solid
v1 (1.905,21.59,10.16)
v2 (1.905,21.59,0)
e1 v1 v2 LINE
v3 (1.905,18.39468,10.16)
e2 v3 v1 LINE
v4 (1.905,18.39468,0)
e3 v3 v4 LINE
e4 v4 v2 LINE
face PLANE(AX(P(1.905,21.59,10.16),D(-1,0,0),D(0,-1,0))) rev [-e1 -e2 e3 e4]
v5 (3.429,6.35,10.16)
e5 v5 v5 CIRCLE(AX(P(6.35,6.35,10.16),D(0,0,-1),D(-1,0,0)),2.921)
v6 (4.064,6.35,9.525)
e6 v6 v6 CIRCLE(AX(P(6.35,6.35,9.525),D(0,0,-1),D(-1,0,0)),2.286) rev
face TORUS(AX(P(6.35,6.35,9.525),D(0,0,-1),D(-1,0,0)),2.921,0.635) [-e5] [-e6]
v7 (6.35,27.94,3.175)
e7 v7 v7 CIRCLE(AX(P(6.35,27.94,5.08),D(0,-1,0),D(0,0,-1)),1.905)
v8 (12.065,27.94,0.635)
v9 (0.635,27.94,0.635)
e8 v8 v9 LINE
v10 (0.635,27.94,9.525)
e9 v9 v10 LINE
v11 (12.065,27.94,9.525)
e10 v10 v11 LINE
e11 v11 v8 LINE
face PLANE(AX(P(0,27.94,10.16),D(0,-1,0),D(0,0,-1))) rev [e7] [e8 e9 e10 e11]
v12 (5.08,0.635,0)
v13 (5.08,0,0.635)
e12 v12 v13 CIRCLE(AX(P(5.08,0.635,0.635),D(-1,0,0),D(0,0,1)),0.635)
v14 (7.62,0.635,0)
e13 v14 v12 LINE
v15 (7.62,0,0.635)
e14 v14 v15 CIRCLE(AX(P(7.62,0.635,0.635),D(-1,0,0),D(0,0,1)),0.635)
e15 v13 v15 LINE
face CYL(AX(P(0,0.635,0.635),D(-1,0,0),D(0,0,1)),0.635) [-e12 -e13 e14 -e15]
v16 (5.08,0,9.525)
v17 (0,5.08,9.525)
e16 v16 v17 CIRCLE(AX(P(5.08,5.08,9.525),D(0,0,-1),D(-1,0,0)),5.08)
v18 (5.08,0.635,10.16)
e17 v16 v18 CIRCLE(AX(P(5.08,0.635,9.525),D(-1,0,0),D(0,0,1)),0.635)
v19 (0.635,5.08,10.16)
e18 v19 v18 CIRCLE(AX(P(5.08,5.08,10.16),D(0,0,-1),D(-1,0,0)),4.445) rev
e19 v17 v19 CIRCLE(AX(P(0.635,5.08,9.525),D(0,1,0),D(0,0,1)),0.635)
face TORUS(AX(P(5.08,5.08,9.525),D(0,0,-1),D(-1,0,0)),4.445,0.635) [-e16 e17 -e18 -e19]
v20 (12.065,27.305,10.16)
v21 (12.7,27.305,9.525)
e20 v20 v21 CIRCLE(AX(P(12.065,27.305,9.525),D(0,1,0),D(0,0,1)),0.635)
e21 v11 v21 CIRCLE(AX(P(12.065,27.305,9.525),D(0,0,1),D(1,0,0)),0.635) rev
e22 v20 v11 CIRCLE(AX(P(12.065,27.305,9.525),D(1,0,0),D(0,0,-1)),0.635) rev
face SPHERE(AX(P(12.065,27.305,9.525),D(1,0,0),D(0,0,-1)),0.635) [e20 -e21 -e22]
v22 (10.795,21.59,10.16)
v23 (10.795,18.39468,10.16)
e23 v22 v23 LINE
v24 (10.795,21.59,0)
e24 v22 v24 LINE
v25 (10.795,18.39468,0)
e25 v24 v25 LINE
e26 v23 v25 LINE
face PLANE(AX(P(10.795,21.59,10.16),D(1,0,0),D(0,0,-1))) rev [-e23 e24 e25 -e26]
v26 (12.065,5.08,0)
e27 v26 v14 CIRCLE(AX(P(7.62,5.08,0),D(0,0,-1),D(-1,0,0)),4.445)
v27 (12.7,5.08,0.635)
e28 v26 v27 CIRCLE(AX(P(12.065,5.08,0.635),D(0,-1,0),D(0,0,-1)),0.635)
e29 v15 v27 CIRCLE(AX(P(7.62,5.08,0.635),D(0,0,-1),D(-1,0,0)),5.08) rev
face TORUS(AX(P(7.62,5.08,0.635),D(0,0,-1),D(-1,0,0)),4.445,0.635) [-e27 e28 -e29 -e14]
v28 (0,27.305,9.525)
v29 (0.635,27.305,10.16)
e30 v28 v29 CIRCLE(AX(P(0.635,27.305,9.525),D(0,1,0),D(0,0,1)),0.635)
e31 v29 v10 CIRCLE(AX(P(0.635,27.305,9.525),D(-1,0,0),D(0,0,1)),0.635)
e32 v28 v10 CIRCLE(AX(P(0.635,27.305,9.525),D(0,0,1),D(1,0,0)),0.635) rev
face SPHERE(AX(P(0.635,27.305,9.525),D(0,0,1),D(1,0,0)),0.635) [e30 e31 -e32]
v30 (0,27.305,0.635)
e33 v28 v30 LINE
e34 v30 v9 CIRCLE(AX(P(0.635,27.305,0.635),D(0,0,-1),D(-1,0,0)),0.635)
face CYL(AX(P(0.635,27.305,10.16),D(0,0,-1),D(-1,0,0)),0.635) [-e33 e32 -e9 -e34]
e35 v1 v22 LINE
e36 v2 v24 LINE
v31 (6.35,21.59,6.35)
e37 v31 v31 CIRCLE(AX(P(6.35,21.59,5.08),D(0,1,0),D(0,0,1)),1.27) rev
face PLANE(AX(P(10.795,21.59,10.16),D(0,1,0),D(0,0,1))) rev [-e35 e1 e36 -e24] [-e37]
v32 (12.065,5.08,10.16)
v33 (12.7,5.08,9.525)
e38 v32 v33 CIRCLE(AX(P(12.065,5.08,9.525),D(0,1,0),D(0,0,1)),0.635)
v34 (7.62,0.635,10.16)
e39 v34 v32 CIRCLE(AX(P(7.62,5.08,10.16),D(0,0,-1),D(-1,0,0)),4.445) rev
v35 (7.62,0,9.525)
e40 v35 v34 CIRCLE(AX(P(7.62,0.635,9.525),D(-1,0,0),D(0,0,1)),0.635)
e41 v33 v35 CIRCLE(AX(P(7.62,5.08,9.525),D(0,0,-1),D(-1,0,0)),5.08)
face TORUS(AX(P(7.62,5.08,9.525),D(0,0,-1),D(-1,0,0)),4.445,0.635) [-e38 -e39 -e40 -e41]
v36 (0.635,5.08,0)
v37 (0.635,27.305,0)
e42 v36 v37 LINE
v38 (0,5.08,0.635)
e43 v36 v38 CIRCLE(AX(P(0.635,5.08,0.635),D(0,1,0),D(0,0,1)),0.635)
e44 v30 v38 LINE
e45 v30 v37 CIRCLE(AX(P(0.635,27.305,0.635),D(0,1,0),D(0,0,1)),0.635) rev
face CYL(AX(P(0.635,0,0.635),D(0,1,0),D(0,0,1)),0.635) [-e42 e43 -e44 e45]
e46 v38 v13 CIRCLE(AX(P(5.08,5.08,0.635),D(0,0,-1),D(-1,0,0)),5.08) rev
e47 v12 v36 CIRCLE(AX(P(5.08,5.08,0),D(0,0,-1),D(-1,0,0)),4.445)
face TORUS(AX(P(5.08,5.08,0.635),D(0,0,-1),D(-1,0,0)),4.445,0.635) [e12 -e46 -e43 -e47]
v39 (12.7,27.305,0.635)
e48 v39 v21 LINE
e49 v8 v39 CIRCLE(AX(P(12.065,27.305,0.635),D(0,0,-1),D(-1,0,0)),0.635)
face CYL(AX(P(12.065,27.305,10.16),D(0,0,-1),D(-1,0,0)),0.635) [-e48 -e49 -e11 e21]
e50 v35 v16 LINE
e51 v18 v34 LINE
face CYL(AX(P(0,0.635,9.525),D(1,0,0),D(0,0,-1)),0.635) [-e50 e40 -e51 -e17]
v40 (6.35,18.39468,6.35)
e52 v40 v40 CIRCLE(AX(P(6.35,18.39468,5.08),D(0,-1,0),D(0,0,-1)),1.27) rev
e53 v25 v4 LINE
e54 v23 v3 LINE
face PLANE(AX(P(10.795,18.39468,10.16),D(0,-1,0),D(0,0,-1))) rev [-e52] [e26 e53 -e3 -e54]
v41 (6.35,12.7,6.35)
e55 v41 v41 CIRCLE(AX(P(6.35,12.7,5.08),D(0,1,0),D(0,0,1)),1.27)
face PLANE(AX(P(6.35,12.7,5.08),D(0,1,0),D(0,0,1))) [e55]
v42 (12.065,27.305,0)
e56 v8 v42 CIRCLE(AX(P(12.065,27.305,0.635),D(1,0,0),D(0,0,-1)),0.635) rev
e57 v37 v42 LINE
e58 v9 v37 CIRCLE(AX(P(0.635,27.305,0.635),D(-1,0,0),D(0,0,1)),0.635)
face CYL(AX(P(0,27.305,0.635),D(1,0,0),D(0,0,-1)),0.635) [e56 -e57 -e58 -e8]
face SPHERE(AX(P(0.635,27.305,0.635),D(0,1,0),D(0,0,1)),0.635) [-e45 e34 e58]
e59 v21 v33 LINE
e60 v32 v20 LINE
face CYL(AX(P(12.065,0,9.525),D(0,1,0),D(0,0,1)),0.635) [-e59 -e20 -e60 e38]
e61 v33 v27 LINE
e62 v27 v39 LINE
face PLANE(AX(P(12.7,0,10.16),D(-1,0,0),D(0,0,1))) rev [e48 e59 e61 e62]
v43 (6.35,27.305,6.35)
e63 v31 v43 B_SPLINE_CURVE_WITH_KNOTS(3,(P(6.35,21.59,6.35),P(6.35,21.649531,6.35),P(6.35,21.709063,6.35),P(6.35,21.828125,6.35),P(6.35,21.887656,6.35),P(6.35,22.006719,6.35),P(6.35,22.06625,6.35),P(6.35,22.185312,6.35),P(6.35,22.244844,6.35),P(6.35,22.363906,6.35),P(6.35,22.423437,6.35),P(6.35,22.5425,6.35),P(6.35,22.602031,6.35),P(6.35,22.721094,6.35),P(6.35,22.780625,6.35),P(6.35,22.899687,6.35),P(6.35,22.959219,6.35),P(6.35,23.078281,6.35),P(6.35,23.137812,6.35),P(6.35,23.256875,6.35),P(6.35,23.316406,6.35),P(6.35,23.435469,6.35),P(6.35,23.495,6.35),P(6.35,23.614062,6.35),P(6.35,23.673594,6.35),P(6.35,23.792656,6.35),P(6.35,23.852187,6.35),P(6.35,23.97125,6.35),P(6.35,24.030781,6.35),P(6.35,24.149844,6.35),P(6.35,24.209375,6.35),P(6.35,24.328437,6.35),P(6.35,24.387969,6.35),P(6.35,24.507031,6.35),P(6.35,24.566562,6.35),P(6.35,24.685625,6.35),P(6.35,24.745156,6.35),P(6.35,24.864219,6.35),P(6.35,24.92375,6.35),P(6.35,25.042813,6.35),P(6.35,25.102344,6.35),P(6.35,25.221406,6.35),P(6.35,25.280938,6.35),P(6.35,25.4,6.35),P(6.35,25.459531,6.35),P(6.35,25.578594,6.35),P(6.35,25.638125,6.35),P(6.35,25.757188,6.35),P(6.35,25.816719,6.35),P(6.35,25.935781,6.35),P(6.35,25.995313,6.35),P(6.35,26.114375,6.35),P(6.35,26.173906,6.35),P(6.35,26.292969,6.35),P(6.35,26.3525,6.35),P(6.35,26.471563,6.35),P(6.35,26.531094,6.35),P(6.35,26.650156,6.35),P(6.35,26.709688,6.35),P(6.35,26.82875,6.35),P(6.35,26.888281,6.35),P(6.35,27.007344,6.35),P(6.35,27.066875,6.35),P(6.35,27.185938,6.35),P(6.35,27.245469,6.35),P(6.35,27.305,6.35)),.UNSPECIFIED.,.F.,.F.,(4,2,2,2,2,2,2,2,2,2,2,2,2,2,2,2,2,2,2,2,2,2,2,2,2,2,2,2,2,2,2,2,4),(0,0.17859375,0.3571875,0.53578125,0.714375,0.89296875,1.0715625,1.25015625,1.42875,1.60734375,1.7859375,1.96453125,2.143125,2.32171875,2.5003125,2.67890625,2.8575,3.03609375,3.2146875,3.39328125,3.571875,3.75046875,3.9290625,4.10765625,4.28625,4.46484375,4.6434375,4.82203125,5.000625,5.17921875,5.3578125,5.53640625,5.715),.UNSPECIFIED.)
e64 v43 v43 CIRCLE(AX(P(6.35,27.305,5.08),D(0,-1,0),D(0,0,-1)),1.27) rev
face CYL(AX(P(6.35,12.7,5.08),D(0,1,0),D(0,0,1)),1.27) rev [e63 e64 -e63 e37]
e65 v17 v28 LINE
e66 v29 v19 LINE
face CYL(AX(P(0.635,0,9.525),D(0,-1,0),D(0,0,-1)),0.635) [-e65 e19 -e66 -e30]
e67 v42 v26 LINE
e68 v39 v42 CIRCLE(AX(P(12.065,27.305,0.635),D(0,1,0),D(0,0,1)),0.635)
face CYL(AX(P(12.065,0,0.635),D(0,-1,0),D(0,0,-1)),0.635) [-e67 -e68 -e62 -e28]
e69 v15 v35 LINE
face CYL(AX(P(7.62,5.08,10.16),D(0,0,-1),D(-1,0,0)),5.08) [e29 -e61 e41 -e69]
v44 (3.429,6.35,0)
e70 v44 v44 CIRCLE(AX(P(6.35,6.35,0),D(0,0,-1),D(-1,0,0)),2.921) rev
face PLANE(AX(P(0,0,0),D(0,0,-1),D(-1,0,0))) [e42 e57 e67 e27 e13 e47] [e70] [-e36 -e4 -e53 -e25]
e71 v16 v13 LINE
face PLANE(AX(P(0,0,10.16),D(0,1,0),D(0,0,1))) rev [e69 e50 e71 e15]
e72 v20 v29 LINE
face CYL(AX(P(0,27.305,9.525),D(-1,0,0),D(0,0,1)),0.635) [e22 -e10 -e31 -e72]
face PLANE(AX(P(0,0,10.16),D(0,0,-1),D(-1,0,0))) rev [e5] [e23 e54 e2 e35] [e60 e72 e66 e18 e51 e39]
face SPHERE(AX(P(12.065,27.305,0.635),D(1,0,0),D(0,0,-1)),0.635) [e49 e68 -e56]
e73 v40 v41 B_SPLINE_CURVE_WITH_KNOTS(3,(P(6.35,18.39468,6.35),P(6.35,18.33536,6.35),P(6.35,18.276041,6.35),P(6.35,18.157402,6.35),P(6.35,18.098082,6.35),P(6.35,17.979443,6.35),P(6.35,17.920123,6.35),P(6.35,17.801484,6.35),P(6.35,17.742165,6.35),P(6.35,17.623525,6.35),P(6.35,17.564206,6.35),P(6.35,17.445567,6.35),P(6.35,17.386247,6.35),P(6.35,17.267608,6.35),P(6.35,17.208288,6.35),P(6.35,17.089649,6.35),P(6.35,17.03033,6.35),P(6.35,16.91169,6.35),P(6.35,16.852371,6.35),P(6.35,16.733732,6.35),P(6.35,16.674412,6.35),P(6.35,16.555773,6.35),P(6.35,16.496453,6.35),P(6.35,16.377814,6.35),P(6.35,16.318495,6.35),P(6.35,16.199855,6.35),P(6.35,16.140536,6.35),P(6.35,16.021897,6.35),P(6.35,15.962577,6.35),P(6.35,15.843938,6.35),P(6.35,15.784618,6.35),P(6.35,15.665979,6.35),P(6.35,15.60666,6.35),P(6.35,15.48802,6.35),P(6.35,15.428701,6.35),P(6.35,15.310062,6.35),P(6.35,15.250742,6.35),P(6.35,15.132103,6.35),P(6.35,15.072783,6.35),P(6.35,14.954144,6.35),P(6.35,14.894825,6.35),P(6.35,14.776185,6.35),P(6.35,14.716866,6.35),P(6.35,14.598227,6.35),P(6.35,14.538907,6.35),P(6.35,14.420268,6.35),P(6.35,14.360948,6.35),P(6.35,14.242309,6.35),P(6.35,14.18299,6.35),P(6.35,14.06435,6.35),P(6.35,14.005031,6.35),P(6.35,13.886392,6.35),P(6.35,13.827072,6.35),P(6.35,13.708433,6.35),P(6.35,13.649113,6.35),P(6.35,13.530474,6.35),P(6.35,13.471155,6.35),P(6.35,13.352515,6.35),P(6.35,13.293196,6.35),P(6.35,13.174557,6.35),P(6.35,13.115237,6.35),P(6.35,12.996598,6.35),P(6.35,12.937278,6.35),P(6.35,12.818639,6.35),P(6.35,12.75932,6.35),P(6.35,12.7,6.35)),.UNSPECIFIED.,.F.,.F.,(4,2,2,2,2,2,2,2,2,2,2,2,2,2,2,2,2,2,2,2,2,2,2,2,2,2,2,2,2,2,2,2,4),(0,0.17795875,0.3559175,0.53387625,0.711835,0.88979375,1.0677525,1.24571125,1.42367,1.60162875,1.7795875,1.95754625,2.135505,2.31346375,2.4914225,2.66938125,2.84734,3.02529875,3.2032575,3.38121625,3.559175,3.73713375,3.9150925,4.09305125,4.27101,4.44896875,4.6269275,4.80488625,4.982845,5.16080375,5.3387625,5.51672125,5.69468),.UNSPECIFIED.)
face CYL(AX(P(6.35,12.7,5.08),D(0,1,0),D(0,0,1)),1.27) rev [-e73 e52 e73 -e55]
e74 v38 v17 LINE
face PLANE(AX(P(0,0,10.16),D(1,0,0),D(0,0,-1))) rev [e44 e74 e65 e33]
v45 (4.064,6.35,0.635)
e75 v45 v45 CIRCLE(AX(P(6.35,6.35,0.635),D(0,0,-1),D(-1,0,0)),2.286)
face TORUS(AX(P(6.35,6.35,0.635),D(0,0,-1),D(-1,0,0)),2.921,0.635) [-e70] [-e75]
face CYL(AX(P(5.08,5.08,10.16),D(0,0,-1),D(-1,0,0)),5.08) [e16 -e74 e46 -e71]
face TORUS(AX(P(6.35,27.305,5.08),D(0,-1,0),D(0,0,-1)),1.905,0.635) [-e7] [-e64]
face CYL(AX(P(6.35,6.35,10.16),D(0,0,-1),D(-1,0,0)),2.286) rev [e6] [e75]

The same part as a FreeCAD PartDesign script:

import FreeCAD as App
import Part
import Sketcher
Q = App.Units.Quantity


def edges_at(feature, points):
    """Names of the edges that pass closest to the given points."""
    edges = feature.Shape.Edges
    near = lambda p: min(range(len(edges)), key=lambda i: edges[i].distToShape(Part.Vertex(*p))[0])
    return sorted({f"Edge{near(p) + 1}" for p in points})


def add_polygon(sketch, points):
    """Adds a closed chain of lines whose ends are joined by coincident constraints."""
    first, n = sketch.GeometryCount, len(points)
    for a, b in zip(points, points[1:] + points[:1]):
        sketch.addGeometry(Part.LineSegment(App.Vector(*a, 0), App.Vector(*b, 0)), False)
    for i in range(n):
        sketch.addConstraint(Sketcher.Constraint("Coincident", first + i, 2, first + (i + 1) % n, 1))

doc = App.newDocument("Part")
body = doc.addObject("PartDesign::Body", "Body")

sketch1 = body.newObject("Sketcher::SketchObject", "Sketch")
sketch1.AttachmentSupport = (doc.getObject("XY_Plane"), [""])
sketch1.MapMode = "FlatFace"
add_polygon(sketch1, [(0, 27.94), (0, 0), (12.7, 0), (12.7, 27.94)])
sketch1.addGeometry(Part.Circle(App.Vector(6.35, 6.35, 0), App.Vector(0, 0, 1), 2.286), False)
sketch1.addConstraint([
    Sketcher.Constraint("Vertical", 0),
    Sketcher.Constraint("Horizontal", 1),
    Sketcher.Constraint("Vertical", 2),
    Sketcher.Constraint("Horizontal", 3),
    Sketcher.Constraint("Coincident", 0, 2, -1, 1),
    Sketcher.Constraint("Diameter", 4, Q("0.18 in")),
    Sketcher.Constraint("DistanceX", 1, 1, 1, 2, Q("0.5 in")),
    Sketcher.Constraint("DistanceY", 0, 2, 0, 1, Q("1.1 in")),
    Sketcher.Constraint("DistanceX", -1, 1, 4, 3, Q("0.25 in")),
    Sketcher.Constraint("DistanceY", -1, 1, 4, 3, Q("0.25 in")),
])
pad1 = body.newObject("PartDesign::Pad", "Pad")
pad1.Profile = sketch1
pad1.Length = Q("0.4 in")

sketch2 = body.newObject("Sketcher::SketchObject", "Sketch001")
sketch2.AttachmentSupport = (doc.getObject("XZ_Plane"), [""])
sketch2.MapMode = "FlatFace"
sketch2.AttachmentOffset = App.Placement(App.Vector(0, 0, -1.1 * 25.4), App.Rotation())
sketch2.addGeometry(Part.Circle(App.Vector(6.35, 5.08, 0), App.Vector(0, 0, 1), 1.27), False)
sketch2.addConstraint([
    Sketcher.Constraint("Diameter", 0, Q("0.1 in")),
    Sketcher.Constraint("DistanceY", -1, 1, 0, 3, Q("0.2 in")),
    Sketcher.Constraint("DistanceX", -1, 1, 0, 3, Q("0.25 in")),
])
pocket1 = body.newObject("PartDesign::Pocket", "Pocket")
pocket1.Profile = sketch2
pocket1.Length = Q("0.6 in")
pocket1.Reversed = True
doc.recompute()

fillet = body.newObject("PartDesign::Fillet", "Fillet")
fillet.Base = (pocket1, edges_at(pocket1, [(12.7, 0, 5.08), (0, 0, 5.08)]))
fillet.Radius = Q("0.2 in")
doc.recompute()

fillet2 = body.newObject("PartDesign::Fillet", "Fillet001")
fillet2.Base = (fillet, edges_at(fillet, [
    (4.064, 6.35, 0),
    (4.064, 6.35, 10.16),
    (6.35, 27.94, 10.16),
    (6.35, 27.94, 3.81),
    (12.7, 16.51, 0),
    (12.7, 16.51, 10.16),
    (6.35, 0, 0),
    (1.488, 1.488, 0),
    (11.212, 1.488, 0),
    (6.35, 0, 10.16),
    (1.488, 1.488, 10.16),
    (11.212, 1.488, 10.16),
    (0, 16.51, 10.16),
    (6.35, 27.94, 0),
    (0, 16.51, 0),
    (0, 27.94, 5.08),
    (12.7, 27.94, 5.08),
]))
fillet2.Radius = Q("0.025 in")

sketch3 = body.newObject("Sketcher::SketchObject", "Sketch002")
sketch3.AttachmentSupport = (doc.getObject("XY_Plane"), [""])
sketch3.MapMode = "FlatFace"
add_polygon(sketch3, [(10.795, 21.59), (10.795, 18.39468), (1.905, 18.39468), (1.905, 21.59)])
sketch3.addConstraint([
    Sketcher.Constraint("Vertical", 0),
    Sketcher.Constraint("Horizontal", 1),
    Sketcher.Constraint("Vertical", 2),
    Sketcher.Constraint("Horizontal", 3),
    Sketcher.Constraint("DistanceX", 1, 2, 1, 1, Q("0.35 in")),
    Sketcher.Constraint("DistanceY", -1, 1, 2, 2, Q("0.85 in")),
    Sketcher.Constraint("DistanceY", 0, 2, 0, 1, Q("0.1258 in")),
    Sketcher.Constraint("DistanceX", -1, 1, 0, 2, Q("0.425 in")),
])
pocket2 = body.newObject("PartDesign::Pocket", "Pocket001")
pocket2.Profile = sketch3
pocket2.Type = "ThroughAll"
pocket2.Reversed = True

doc.recompute()
